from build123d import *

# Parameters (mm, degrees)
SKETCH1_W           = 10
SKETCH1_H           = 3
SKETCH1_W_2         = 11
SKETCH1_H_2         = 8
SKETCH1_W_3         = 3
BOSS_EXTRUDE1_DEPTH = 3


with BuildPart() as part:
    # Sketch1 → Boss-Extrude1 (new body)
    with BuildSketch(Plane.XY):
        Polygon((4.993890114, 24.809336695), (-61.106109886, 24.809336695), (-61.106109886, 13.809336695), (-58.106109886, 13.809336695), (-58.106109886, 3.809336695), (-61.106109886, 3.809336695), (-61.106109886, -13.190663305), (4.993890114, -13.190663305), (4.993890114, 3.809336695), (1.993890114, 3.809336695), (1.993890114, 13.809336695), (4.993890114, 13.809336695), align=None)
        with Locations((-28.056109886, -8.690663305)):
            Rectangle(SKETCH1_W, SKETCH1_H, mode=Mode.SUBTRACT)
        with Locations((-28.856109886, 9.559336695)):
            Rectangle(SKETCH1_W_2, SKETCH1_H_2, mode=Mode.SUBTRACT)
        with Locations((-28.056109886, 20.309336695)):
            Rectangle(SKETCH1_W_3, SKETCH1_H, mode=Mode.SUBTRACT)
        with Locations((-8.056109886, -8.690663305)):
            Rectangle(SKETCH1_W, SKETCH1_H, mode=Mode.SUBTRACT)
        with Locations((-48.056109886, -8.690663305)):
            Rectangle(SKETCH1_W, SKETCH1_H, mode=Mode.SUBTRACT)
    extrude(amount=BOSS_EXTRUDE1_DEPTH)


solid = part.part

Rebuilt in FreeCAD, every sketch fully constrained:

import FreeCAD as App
import Part
import Sketcher

doc = App.newDocument("Part")
body = doc.addObject("PartDesign::Body", "Body")

sketch1 = body.newObject("Sketcher::SketchObject", "Sketch")
sketch1.AttachmentSupport = (doc.getObject("XY_Plane"), [""])
sketch1.MapMode = "FlatFace"
sketch1.addGeometry(Part.LineSegment(App.Vector(5, 24.8, 0), App.Vector(-61.1, 24.8, 0)), False)
sketch1.addGeometry(Part.LineSegment(App.Vector(-61.1, 24.8, 0), App.Vector(-61.1, 13.8, 0)), False)
sketch1.addGeometry(Part.LineSegment(App.Vector(-61.1, 13.8, 0), App.Vector(-58.1, 13.8, 0)), False)
sketch1.addGeometry(Part.LineSegment(App.Vector(-58.1, 13.8, 0), App.Vector(-58.1, 3.8, 0)), False)
sketch1.addGeometry(Part.LineSegment(App.Vector(-58.1, 3.8, 0), App.Vector(-61.1, 3.8, 0)), False)
sketch1.addGeometry(Part.LineSegment(App.Vector(-61.1, 3.8, 0), App.Vector(-61.1, -13.2, 0)), False)
sketch1.addGeometry(Part.LineSegment(App.Vector(-61.1, -13.2, 0), App.Vector(5, -13.2, 0)), False)
sketch1.addGeometry(Part.LineSegment(App.Vector(5, -13.2, 0), App.Vector(5, 3.8, 0)), False)
sketch1.addGeometry(Part.LineSegment(App.Vector(5, 3.8, 0), App.Vector(2, 3.8, 0)), False)
sketch1.addGeometry(Part.LineSegment(App.Vector(2, 3.8, 0), App.Vector(2, 13.8, 0)), False)
sketch1.addGeometry(Part.LineSegment(App.Vector(2, 13.8, 0), App.Vector(5, 13.8, 0)), False)
sketch1.addGeometry(Part.LineSegment(App.Vector(5, 13.8, 0), App.Vector(5, 24.8, 0)), False)
sketch1.addGeometry(Part.LineSegment(App.Vector(-43.1, -10.2, 0), App.Vector(-53.1, -10.2, 0)), False)
sketch1.addGeometry(Part.LineSegment(App.Vector(-53.1, -10.2, 0), App.Vector(-53.1, -7.2, 0)), False)
sketch1.addGeometry(Part.LineSegment(App.Vector(-53.1, -7.2, 0), App.Vector(-43.1, -7.2, 0)), False)
sketch1.addGeometry(Part.LineSegment(App.Vector(-43.1, -7.2, 0), App.Vector(-43.1, -10.2, 0)), False)
sketch1.addGeometry(Part.LineSegment(App.Vector(-23.1, -10.2, 0), App.Vector(-33.1, -10.2, 0)), False)
sketch1.addGeometry(Part.LineSegment(App.Vector(-33.1, -10.2, 0), App.Vector(-33.1, -7.2, 0)), False)
sketch1.addGeometry(Part.LineSegment(App.Vector(-33.1, -7.2, 0), App.Vector(-23.1, -7.2, 0)), False)
sketch1.addGeometry(Part.LineSegment(App.Vector(-23.1, -7.2, 0), App.Vector(-23.1, -10.2, 0)), False)
sketch1.addGeometry(Part.LineSegment(App.Vector(-3.1, -10.2, 0), App.Vector(-13.1, -10.2, 0)), False)
sketch1.addGeometry(Part.LineSegment(App.Vector(-13.1, -10.2, 0), App.Vector(-13.1, -7.2, 0)), False)
sketch1.addGeometry(Part.LineSegment(App.Vector(-13.1, -7.2, 0), App.Vector(-3.1, -7.2, 0)), False)
sketch1.addGeometry(Part.LineSegment(App.Vector(-3.1, -7.2, 0), App.Vector(-3.1, -10.2, 0)), False)
sketch1.addGeometry(Part.LineSegment(App.Vector(-23.4, 5.6, 0), App.Vector(-34.4, 5.6, 0)), False)
sketch1.addGeometry(Part.LineSegment(App.Vector(-34.4, 5.6, 0), App.Vector(-34.4, 13.6, 0)), False)
sketch1.addGeometry(Part.LineSegment(App.Vector(-34.4, 13.6, 0), App.Vector(-23.4, 13.6, 0)), False)
sketch1.addGeometry(Part.LineSegment(App.Vector(-23.4, 13.6, 0), App.Vector(-23.4, 5.6, 0)), False)
sketch1.addGeometry(Part.LineSegment(App.Vector(-26.6, 18.8, 0), App.Vector(-29.6, 18.8, 0)), False)
sketch1.addGeometry(Part.LineSegment(App.Vector(-29.6, 18.8, 0), App.Vector(-29.6, 21.8, 0)), False)
sketch1.addGeometry(Part.LineSegment(App.Vector(-29.6, 21.8, 0), App.Vector(-26.6, 21.8, 0)), False)
sketch1.addGeometry(Part.LineSegment(App.Vector(-26.6, 21.8, 0), App.Vector(-26.6, 18.8, 0)), False)
sketch1.addConstraint(Sketcher.Constraint("Coincident", 0, 2, 1, 1))
sketch1.addConstraint(Sketcher.Constraint("Coincident", 1, 2, 2, 1))
sketch1.addConstraint(Sketcher.Constraint("Coincident", 2, 2, 3, 1))
sketch1.addConstraint(Sketcher.Constraint("Coincident", 3, 2, 4, 1))
sketch1.addConstraint(Sketcher.Constraint("Coincident", 4, 2, 5, 1))
sketch1.addConstraint(Sketcher.Constraint("Coincident", 5, 2, 6, 1))
sketch1.addConstraint(Sketcher.Constraint("Coincident", 6, 2, 7, 1))
sketch1.addConstraint(Sketcher.Constraint("Coincident", 7, 2, 8, 1))
sketch1.addConstraint(Sketcher.Constraint("Coincident", 8, 2, 9, 1))
sketch1.addConstraint(Sketcher.Constraint("Coincident", 9, 2, 10, 1))
sketch1.addConstraint(Sketcher.Constraint("Coincident", 10, 2, 11, 1))
sketch1.addConstraint(Sketcher.Constraint("Coincident", 11, 2, 0, 1))
sketch1.addConstraint(Sketcher.Constraint("Coincident", 12, 2, 13, 1))
sketch1.addConstraint(Sketcher.Constraint("Coincident", 13, 2, 14, 1))
sketch1.addConstraint(Sketcher.Constraint("Coincident", 14, 2, 15, 1))
sketch1.addConstraint(Sketcher.Constraint("Coincident", 15, 2, 12, 1))
sketch1.addConstraint(Sketcher.Constraint("Coincident", 16, 2, 17, 1))
sketch1.addConstraint(Sketcher.Constraint("Coincident", 17, 2, 18, 1))
sketch1.addConstraint(Sketcher.Constraint("Coincident", 18, 2, 19, 1))
sketch1.addConstraint(Sketcher.Constraint("Coincident", 19, 2, 16, 1))
sketch1.addConstraint(Sketcher.Constraint("Coincident", 20, 2, 21, 1))
sketch1.addConstraint(Sketcher.Constraint("Coincident", 21, 2, 22, 1))
sketch1.addConstraint(Sketcher.Constraint("Coincident", 22, 2, 23, 1))
sketch1.addConstraint(Sketcher.Constraint("Coincident", 23, 2, 20, 1))
sketch1.addConstraint(Sketcher.Constraint("Coincident", 24, 2, 25, 1))
sketch1.addConstraint(Sketcher.Constraint("Coincident", 25, 2, 26, 1))
sketch1.addConstraint(Sketcher.Constraint("Coincident", 26, 2, 27, 1))
sketch1.addConstraint(Sketcher.Constraint("Coincident", 27, 2, 24, 1))
sketch1.addConstraint(Sketcher.Constraint("Coincident", 28, 2, 29, 1))
sketch1.addConstraint(Sketcher.Constraint("Coincident", 29, 2, 30, 1))
sketch1.addConstraint(Sketcher.Constraint("Coincident", 30, 2, 31, 1))
sketch1.addConstraint(Sketcher.Constraint("Coincident", 31, 2, 28, 1))
sketch1.addConstraint(Sketcher.Constraint("Horizontal", 0))
sketch1.addConstraint(Sketcher.Constraint("Vertical", 1))
sketch1.addConstraint(Sketcher.Constraint("Horizontal", 2))
sketch1.addConstraint(Sketcher.Constraint("Vertical", 3))
sketch1.addConstraint(Sketcher.Constraint("Horizontal", 4))
sketch1.addConstraint(Sketcher.Constraint("Vertical", 5))
sketch1.addConstraint(Sketcher.Constraint("Horizontal", 6))
sketch1.addConstraint(Sketcher.Constraint("Vertical", 7))
sketch1.addConstraint(Sketcher.Constraint("Horizontal", 8))
sketch1.addConstraint(Sketcher.Constraint("Vertical", 9))
sketch1.addConstraint(Sketcher.Constraint("Horizontal", 10))
sketch1.addConstraint(Sketcher.Constraint("Vertical", 11))
sketch1.addConstraint(Sketcher.Constraint("Horizontal", 12))
sketch1.addConstraint(Sketcher.Constraint("Vertical", 13))
sketch1.addConstraint(Sketcher.Constraint("Horizontal", 14))
sketch1.addConstraint(Sketcher.Constraint("Vertical", 15))
sketch1.addConstraint(Sketcher.Constraint("Horizontal", 16))
sketch1.addConstraint(Sketcher.Constraint("Vertical", 17))
sketch1.addConstraint(Sketcher.Constraint("Horizontal", 18))
sketch1.addConstraint(Sketcher.Constraint("Vertical", 19))
sketch1.addConstraint(Sketcher.Constraint("Horizontal", 20))
sketch1.addConstraint(Sketcher.Constraint("Vertical", 21))
sketch1.addConstraint(Sketcher.Constraint("Horizontal", 22))
sketch1.addConstraint(Sketcher.Constraint("Vertical", 23))
sketch1.addConstraint(Sketcher.Constraint("Horizontal", 24))
sketch1.addConstraint(Sketcher.Constraint("Vertical", 25))
sketch1.addConstraint(Sketcher.Constraint("Horizontal", 26))
sketch1.addConstraint(Sketcher.Constraint("Vertical", 27))
sketch1.addConstraint(Sketcher.Constraint("Horizontal", 28))
sketch1.addConstraint(Sketcher.Constraint("Vertical", 29))
sketch1.addConstraint(Sketcher.Constraint("Horizontal", 30))
sketch1.addConstraint(Sketcher.Constraint("Vertical", 31))
sketch1.addConstraint(Sketcher.Constraint("Horizontal", 4, 2, 7, 2))
sketch1.addConstraint(Sketcher.Constraint("Horizontal", 2, 2, 9, 2))
sketch1.addConstraint(Sketcher.Constraint("Horizontal", 15, 2, 16, 2))
sketch1.addConstraint(Sketcher.Constraint("Horizontal", 14, 2, 17, 2))
sketch1.addConstraint(Sketcher.Constraint("Horizontal", 19, 2, 20, 2))
sketch1.addConstraint(Sketcher.Constraint("Horizontal", 18, 2, 21, 2))
sketch1.addConstraint(Sketcher.Constraint("Vertical", 1, 2, 4, 2))
sketch1.addConstraint(Sketcher.Constraint("Vertical", 7, 2, 10, 2))
sketch1.addConstraint(Sketcher.Constraint("Equal", 4, 8))
sketch1.addConstraint(Sketcher.Constraint("Equal", 14, 16))
sketch1.addConstraint(Sketcher.Constraint("Equal", 18, 20))
sketch1.addConstraint(Sketcher.Constraint("Equal", 10, 28))
sketch1.addConstraint(Sketcher.Constraint("Equal", 26, 1))
sketch1.addConstraint(Sketcher.Constraint("Equal", 22, 3))
sketch1.addConstraint(Sketcher.Constraint("Equal", 30, 13))
sketch1.addConstraint(Sketcher.Constraint("Equal", 23, 29))
sketch1.addConstraint(Sketcher.Constraint("DistanceX", 2, 1, 2, 2, 3.0))
sketch1.addConstraint(Sketcher.Constraint("DistanceX", 12, 2, 12, 1, 10.0))
sketch1.addConstraint(Sketcher.Constraint("DistanceX", 24, 2, 24, 1, 11.0))
sketch1.addConstraint(Sketcher.Constraint("DistanceY", 5, 2, 5, 1, 17.0))
sketch1.addConstraint(Sketcher.Constraint("DistanceY", 25, 1, 25, 2, 8.0))
sketch1.addConstraint(Sketcher.Constraint("DistanceX", 0, 2, 0, 1, 66.1))
sketch1.addConstraint(Sketcher.Constraint("DistanceY", 5, 2, 12, 2, 3.0))
sketch1.addConstraint(Sketcher.Constraint("DistanceX", 15, 2, 16, 2, 10.0))
sketch1.addConstraint(Sketcher.Constraint("DistanceX", 19, 2, 20, 2, 10.0))
sketch1.addConstraint(Sketcher.Constraint("DistanceY", 17, 2, 28, 2, 26.0))
sketch1.addConstraint(Sketcher.Constraint("DistanceX", 24, 2, 17, 2, 1.3))
sketch1.addConstraint(Sketcher.Constraint("DistanceX", 25, 2, 28, 2, 4.8))
sketch1.addConstraint(Sketcher.Constraint("DistanceX", 5, 2, 12, 2, 8.05))
sketch1.addConstraint(Sketcher.Constraint("DistanceY", 17, 2, 24, 2, 12.75))
sketch1.addConstraint(Sketcher.Constraint("DistanceX", 0, 2, -1, 1, 61.10611))
sketch1.addConstraint(Sketcher.Constraint("DistanceY", -1, 1, 0, 2, 24.809337))
pad1 = body.newObject("PartDesign::Pad", "Pad")
pad1.Profile = sketch1
pad1.Length = 3

doc.recompute()
